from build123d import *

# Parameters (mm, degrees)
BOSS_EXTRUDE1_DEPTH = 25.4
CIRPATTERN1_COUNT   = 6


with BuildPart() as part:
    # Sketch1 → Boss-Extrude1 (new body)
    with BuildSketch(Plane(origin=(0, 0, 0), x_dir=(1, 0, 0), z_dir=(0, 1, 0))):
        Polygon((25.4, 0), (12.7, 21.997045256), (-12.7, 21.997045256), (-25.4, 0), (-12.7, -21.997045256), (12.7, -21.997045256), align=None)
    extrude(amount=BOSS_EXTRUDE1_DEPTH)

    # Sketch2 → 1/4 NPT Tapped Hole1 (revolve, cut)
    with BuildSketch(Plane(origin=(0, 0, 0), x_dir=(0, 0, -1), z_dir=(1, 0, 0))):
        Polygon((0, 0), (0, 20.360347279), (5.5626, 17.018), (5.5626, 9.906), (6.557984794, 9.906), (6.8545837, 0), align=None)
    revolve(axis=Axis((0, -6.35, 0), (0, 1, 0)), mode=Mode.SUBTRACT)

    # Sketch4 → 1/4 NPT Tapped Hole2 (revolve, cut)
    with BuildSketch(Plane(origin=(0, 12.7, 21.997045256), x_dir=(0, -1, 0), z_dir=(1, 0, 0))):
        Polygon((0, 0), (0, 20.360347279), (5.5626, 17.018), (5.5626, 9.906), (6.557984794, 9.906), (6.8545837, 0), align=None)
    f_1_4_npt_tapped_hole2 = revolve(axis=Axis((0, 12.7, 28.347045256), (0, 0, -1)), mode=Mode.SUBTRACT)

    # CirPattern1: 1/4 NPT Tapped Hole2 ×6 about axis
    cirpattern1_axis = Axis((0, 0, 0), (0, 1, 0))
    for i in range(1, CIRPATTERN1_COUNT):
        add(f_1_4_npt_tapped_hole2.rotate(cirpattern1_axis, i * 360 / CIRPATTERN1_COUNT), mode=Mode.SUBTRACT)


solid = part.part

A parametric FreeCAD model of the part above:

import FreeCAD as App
import Part
import Sketcher

V = App.Vector
Q = App.Units.Quantity


def add_polygon(sketch, points):
    """Adds a closed chain of lines whose ends are joined by coincident constraints."""
    first, n = sketch.GeometryCount, len(points)
    for a, b in zip(points, points[1:] + points[:1]):
        sketch.addGeometry(Part.LineSegment(App.Vector(*a, 0), App.Vector(*b, 0)), False)
    for i in range(n):
        sketch.addConstraint(Sketcher.Constraint("Coincident", first + i, 2, first + (i + 1) % n, 1))

doc = App.newDocument("Part")
body = doc.addObject("PartDesign::Body", "Body")

# Sketch on XZ plane
sketch1 = doc.addObject("Sketcher::SketchObject", "Sketch")
body.addObject(sketch1)
sketch1.AttachmentSupport = (doc.XZ_Plane, [""])
sketch1.MapMode = "FlatFace"
add_polygon(sketch1, [(25, 0), (13, -22), (-13, -22), (-25, 0), (-13, 22), (13, 22)])  # lines 0-5
sketch1.addConstraint([
    Sketcher.Constraint("Horizontal", 1),
    Sketcher.Constraint("Horizontal", 4),
    Sketcher.Constraint("Symmetric", 0, 2, 3, 2, -1, 1),
    Sketcher.Constraint("Symmetric", 2, 2, 5, 2, -1, 1),
    Sketcher.Constraint("PointOnObject", 2, 2, -1),
    Sketcher.Constraint("Parallel", 2, 5),
    Sketcher.Constraint("Vertical", 1, 2, 3, 2),
    Sketcher.Constraint("DistanceX", 1, 2, 1, 1, Q("1 in")),
    Sketcher.Constraint("Distance", 0, Q("1 in")),
    Sketcher.Constraint("DistanceX", 2, 2, -1, 1, Q("1 in")),
])
pad1 = doc.addObject("PartDesign::Pad", "Pad")
body.addObject(pad1)
pad1.Profile = sketch1
pad1.Length = Q("1 in")
pad1.Reversed = True

# Sketch on YZ plane
sketch2 = doc.addObject("Sketcher::SketchObject", "Sketch001")
body.addObject(sketch2)
sketch2.AttachmentSupport = (doc.YZ_Plane, [""])
sketch2.MapMode = "FlatFace"
add_polygon(sketch2, [(20.4, 0), (0, 0), (0, -6.9), (9.9, -6.6), (9.9, -5.6), (17, -5.6)])  # lines 0-5
sketch2.addConstraint([
    Sketcher.Constraint("Horizontal", 0),
    Sketcher.Constraint("Vertical", 1),
    Sketcher.Constraint("Vertical", 3),
    Sketcher.Constraint("Horizontal", 4),
    Sketcher.Constraint("Coincident", 0, 2, -1, 1),
    Sketcher.Constraint("Angle", 5, Q("59 deg")),
    Sketcher.Constraint("DistanceX", 4, 1, 4, 2, Q("0.28 in")),
    Sketcher.Constraint("DistanceX", -1, 1, 2, 2, Q("0.39 in")),
    Sketcher.Constraint("DistanceY", 3, 2, -1, 1, Q("0.219 in")),
    Sketcher.Constraint("DistanceY", 1, 2, 2, 2, Q("0.296599 mm")),
    Sketcher.Constraint("DistanceY", 1, 2, 1, 1, Q("6.854584 mm")),
])
groove = doc.addObject("PartDesign::Groove", "Groove")
body.addObject(groove)
groove.Profile = sketch2
groove.ReferenceAxis = (sketch2, ["H_Axis"])
groove.Angle = 360

# Sketch on YZ plane
sketch3 = doc.addObject("Sketcher::SketchObject", "Sketch002")
body.addObject(sketch3)
sketch3.AttachmentSupport = (doc.YZ_Plane, [""])
sketch3.MapMode = "FlatFace"
add_polygon(sketch3, [(12.7, 1.6), (12.7, 22), (5.8, 22), (6.1, 12.1), (7.1, 12.1), (7.1, 5)])  # lines 0-5
sketch3.addGeometry(Part.LineSegment(V(12.7, 22, 0), V(12.7, 1.6, 0)), True)  # axis
sketch3.addConstraint([
    Sketcher.Constraint("Vertical", 0),
    Sketcher.Constraint("Horizontal", 1),
    Sketcher.Constraint("Horizontal", 3),
    Sketcher.Constraint("Vertical", 4),
    Sketcher.Constraint("Vertical", 6),
    Sketcher.Constraint("Coincident", 6, 1, 0, 2),
    Sketcher.Constraint("Equal", 0, 6),
    Sketcher.Constraint("Angle", 5, Q("-31 deg")),
    Sketcher.Constraint("DistanceY", 4, 2, 4, 1, Q("0.28 in")),
    Sketcher.Constraint("DistanceX", -1, 1, 0, 2, Q("0.5 in")),
    Sketcher.Constraint("DistanceY", 2, 2, 1, 2, Q("0.39 in")),
    Sketcher.Constraint("DistanceX", -1, 1, 3, 2, Q("0.281 in")),
    Sketcher.Constraint("DistanceX", 1, 2, 2, 2, Q("0.296599 mm")),
    Sketcher.Constraint("DistanceX", 1, 2, 1, 1, Q("6.854584 mm")),
    Sketcher.Constraint("DistanceY", -1, 1, 0, 2, Q("21.997045 mm")),
])
groove2 = doc.addObject("PartDesign::Groove", "Groove001")
body.addObject(groove2)
groove2.Profile = sketch3
groove2.ReferenceAxis = (sketch3, ["Axis0"])
groove2.Angle = 360
doc.recompute()

polarpattern = doc.addObject("PartDesign::PolarPattern", "PolarPattern")
body.addObject(polarpattern)
polarpattern.Originals = [groove2]
polarpattern.Axis = (doc.Y_Axis, [""])
polarpattern.Angle = 360
polarpattern.Occurrences = 6
body.Tip = polarpattern

doc.recompute()
